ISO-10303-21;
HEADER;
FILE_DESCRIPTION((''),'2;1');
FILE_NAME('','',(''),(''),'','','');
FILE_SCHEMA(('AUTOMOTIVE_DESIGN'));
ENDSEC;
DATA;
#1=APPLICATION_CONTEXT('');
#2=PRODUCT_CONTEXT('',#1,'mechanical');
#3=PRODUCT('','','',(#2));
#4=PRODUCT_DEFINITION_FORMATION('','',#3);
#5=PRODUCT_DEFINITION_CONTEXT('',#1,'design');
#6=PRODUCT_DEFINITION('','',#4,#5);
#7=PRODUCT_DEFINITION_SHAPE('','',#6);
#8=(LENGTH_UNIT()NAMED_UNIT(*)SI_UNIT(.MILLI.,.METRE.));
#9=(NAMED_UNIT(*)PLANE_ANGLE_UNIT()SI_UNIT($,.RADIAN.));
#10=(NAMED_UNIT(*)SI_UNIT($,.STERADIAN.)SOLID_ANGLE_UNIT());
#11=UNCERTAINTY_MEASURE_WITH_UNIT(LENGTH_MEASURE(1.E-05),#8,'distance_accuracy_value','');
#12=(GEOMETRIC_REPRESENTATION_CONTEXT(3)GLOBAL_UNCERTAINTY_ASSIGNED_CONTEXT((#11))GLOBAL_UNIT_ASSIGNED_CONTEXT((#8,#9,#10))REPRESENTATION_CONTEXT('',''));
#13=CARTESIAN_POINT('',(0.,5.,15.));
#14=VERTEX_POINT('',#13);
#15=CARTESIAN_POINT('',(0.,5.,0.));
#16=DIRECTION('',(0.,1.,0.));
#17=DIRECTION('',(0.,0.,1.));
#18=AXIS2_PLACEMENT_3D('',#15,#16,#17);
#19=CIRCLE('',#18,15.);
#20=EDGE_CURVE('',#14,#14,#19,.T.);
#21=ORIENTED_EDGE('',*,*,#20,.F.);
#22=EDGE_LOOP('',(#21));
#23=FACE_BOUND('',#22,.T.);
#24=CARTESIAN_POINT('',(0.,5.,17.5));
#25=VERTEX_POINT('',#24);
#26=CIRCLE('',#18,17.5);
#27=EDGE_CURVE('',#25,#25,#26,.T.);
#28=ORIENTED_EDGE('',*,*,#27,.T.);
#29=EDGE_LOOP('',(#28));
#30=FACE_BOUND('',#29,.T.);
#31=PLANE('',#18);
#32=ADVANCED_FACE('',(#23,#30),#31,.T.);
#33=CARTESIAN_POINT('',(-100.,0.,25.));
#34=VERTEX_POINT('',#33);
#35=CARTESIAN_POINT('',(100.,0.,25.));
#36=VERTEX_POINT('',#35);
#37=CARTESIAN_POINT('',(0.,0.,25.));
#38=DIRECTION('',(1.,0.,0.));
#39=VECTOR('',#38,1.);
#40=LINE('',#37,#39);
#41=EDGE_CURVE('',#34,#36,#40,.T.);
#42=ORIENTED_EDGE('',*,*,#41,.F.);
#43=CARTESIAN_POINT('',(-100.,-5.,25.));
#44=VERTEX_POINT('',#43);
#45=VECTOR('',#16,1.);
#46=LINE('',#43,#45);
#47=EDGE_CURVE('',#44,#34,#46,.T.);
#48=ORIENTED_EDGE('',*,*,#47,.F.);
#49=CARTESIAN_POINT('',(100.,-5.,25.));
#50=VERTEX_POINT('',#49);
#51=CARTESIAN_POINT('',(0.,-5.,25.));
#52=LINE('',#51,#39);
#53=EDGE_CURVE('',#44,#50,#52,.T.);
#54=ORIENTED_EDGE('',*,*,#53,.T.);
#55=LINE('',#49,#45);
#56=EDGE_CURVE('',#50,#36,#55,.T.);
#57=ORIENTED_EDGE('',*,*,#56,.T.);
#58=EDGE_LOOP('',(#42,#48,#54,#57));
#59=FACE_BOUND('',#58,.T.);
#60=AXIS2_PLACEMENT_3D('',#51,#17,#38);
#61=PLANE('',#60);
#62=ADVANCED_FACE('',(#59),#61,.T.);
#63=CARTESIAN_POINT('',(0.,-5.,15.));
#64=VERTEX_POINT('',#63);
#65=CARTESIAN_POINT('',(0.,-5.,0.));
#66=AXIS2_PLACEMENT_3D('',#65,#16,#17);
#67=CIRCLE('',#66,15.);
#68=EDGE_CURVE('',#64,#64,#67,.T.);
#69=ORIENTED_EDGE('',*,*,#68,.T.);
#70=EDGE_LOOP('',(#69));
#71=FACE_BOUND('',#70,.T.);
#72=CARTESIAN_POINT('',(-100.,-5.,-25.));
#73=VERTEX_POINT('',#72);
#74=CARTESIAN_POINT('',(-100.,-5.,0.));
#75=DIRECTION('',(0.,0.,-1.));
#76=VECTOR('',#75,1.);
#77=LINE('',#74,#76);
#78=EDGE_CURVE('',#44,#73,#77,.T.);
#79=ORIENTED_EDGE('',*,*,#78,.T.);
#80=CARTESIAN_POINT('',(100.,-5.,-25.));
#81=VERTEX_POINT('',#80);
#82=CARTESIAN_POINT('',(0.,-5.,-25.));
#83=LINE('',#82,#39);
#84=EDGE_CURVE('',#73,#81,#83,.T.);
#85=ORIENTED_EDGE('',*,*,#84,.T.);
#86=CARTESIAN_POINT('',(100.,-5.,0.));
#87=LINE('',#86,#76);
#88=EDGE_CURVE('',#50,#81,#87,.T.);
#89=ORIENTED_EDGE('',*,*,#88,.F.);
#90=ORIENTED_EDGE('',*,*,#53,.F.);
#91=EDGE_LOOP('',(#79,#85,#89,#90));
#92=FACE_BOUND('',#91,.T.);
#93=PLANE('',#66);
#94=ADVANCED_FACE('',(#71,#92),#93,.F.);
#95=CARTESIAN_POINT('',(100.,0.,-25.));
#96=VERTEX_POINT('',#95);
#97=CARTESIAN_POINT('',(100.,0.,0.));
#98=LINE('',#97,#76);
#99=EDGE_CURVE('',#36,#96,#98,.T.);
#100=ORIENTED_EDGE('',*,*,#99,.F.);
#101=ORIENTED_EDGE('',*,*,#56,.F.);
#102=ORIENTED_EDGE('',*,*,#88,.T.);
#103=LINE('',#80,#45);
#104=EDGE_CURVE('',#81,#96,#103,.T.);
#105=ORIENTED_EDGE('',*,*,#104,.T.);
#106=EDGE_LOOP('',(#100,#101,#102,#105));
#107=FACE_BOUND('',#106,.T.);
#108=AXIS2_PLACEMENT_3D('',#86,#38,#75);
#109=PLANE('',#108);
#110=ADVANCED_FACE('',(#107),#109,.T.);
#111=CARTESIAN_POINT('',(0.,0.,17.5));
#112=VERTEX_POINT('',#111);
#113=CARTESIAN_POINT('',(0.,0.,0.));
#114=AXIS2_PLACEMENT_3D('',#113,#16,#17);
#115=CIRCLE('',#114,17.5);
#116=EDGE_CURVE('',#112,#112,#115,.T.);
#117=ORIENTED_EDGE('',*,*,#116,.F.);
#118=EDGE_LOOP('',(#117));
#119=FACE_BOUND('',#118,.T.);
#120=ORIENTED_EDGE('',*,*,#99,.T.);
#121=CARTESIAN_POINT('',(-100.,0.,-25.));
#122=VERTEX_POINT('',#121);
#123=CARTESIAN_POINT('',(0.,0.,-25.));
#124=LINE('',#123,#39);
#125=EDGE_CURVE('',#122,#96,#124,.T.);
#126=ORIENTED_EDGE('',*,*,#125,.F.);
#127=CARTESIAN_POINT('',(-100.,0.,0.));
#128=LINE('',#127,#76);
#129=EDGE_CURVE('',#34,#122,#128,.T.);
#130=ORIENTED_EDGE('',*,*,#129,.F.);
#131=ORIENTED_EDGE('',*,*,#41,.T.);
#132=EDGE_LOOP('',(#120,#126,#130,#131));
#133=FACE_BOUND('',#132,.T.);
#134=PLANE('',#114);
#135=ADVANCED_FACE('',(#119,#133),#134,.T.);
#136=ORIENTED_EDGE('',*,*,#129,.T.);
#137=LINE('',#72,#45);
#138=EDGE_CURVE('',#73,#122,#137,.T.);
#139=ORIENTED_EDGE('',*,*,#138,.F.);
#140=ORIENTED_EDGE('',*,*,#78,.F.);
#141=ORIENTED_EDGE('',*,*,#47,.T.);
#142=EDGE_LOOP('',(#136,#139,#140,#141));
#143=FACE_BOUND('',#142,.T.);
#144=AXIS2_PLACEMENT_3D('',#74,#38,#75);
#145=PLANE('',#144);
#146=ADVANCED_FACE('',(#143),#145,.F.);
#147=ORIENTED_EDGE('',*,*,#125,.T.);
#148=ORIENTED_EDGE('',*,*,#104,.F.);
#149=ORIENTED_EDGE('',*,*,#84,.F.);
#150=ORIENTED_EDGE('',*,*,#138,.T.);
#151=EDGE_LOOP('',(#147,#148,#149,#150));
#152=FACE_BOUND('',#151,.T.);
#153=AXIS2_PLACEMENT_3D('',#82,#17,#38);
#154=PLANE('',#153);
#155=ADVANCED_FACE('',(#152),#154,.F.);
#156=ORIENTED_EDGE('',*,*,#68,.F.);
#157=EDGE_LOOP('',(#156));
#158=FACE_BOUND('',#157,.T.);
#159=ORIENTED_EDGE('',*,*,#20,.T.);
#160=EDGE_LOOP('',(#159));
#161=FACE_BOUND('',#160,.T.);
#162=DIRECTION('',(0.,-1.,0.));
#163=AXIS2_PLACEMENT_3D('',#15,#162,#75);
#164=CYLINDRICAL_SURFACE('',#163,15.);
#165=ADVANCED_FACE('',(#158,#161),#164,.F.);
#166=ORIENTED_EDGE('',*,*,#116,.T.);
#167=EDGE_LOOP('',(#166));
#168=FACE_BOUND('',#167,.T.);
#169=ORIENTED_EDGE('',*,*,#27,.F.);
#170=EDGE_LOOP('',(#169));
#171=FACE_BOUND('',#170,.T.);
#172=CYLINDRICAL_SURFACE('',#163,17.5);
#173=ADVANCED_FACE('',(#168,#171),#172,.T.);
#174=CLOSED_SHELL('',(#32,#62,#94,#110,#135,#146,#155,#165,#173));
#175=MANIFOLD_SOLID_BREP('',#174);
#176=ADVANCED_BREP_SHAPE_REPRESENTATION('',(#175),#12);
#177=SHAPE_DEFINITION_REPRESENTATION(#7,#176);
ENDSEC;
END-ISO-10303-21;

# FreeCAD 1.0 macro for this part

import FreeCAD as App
import Part
import Sketcher
from FreeCAD import Vector

doc = App.newDocument("Part")
body = doc.addObject("PartDesign::Body", "Body")

sketch1 = body.newObject("Sketcher::SketchObject", "Sketch")
sketch1.AttachmentSupport = (doc.getObject("XZ_Plane"), [""])
sketch1.MapMode = "FlatFace"
sketch1.addGeometry([
    Part.Circle(Vector(0, 0, 0), Vector(0, 0, 1), 18),
    Part.Circle(Vector(0, 0, 0), Vector(0, 0, 1), 15),
], False)
sketch1.addConstraint([
    Sketcher.Constraint("Coincident", 0, 3, -1, 1),
    Sketcher.Constraint("Coincident", 1, 3, -1, 1),
    Sketcher.Constraint("Diameter", 0, 35.0),
    Sketcher.Constraint("Diameter", 1, 30.0),
])
pad1 = body.newObject("PartDesign::Pad", "Pad")
pad1.Profile = sketch1
pad1.Length = 5
pad1.Reversed = True

sketch2 = body.newObject("Sketcher::SketchObject", "Sketch001")
sketch2.AttachmentSupport = (doc.getObject("XZ_Plane"), [""])
sketch2.MapMode = "FlatFace"
sketch2.AttachmentOffset = App.Placement(Vector(0, 0, 5), App.Rotation())
sketch2.addGeometry([
    Part.LineSegment(Vector(-100, -25, 0), Vector(-100, 25, 0)),
    Part.LineSegment(Vector(-100, 25, 0), Vector(100, 25, 0)),
    Part.LineSegment(Vector(100, 25, 0), Vector(100, -25, 0)),
    Part.LineSegment(Vector(100, -25, 0), Vector(-100, -25, 0)),
    Part.Circle(Vector(0, 0, 0), Vector(0, 0, 1), 15),
], False)
sketch2.addConstraint([
    Sketcher.Constraint("Coincident", 0, 2, 1, 1),
    Sketcher.Constraint("Coincident", 1, 2, 2, 1),
    Sketcher.Constraint("Coincident", 2, 2, 3, 1),
    Sketcher.Constraint("Coincident", 3, 2, 0, 1),
    Sketcher.Constraint("Vertical", 0),
    Sketcher.Constraint("Horizontal", 1),
    Sketcher.Constraint("Vertical", 2),
    Sketcher.Constraint("Horizontal", 3),
    Sketcher.Constraint("Coincident", 4, 3, -1, 1),
    Sketcher.Constraint("Symmetric", 0, 2, 2, 2, -1, 1),
    Sketcher.Constraint("Diameter", 4, 30.0),
    Sketcher.Constraint("DistanceX", 1, 1, 1, 2, 200.0),
    Sketcher.Constraint("DistanceY", 0, 1, 0, 2, 50.0),
])
pad2 = body.newObject("PartDesign::Pad", "Pad001")
pad2.Profile = sketch2
pad2.Length = 5
pad2.Reversed = True

doc.recompute()
